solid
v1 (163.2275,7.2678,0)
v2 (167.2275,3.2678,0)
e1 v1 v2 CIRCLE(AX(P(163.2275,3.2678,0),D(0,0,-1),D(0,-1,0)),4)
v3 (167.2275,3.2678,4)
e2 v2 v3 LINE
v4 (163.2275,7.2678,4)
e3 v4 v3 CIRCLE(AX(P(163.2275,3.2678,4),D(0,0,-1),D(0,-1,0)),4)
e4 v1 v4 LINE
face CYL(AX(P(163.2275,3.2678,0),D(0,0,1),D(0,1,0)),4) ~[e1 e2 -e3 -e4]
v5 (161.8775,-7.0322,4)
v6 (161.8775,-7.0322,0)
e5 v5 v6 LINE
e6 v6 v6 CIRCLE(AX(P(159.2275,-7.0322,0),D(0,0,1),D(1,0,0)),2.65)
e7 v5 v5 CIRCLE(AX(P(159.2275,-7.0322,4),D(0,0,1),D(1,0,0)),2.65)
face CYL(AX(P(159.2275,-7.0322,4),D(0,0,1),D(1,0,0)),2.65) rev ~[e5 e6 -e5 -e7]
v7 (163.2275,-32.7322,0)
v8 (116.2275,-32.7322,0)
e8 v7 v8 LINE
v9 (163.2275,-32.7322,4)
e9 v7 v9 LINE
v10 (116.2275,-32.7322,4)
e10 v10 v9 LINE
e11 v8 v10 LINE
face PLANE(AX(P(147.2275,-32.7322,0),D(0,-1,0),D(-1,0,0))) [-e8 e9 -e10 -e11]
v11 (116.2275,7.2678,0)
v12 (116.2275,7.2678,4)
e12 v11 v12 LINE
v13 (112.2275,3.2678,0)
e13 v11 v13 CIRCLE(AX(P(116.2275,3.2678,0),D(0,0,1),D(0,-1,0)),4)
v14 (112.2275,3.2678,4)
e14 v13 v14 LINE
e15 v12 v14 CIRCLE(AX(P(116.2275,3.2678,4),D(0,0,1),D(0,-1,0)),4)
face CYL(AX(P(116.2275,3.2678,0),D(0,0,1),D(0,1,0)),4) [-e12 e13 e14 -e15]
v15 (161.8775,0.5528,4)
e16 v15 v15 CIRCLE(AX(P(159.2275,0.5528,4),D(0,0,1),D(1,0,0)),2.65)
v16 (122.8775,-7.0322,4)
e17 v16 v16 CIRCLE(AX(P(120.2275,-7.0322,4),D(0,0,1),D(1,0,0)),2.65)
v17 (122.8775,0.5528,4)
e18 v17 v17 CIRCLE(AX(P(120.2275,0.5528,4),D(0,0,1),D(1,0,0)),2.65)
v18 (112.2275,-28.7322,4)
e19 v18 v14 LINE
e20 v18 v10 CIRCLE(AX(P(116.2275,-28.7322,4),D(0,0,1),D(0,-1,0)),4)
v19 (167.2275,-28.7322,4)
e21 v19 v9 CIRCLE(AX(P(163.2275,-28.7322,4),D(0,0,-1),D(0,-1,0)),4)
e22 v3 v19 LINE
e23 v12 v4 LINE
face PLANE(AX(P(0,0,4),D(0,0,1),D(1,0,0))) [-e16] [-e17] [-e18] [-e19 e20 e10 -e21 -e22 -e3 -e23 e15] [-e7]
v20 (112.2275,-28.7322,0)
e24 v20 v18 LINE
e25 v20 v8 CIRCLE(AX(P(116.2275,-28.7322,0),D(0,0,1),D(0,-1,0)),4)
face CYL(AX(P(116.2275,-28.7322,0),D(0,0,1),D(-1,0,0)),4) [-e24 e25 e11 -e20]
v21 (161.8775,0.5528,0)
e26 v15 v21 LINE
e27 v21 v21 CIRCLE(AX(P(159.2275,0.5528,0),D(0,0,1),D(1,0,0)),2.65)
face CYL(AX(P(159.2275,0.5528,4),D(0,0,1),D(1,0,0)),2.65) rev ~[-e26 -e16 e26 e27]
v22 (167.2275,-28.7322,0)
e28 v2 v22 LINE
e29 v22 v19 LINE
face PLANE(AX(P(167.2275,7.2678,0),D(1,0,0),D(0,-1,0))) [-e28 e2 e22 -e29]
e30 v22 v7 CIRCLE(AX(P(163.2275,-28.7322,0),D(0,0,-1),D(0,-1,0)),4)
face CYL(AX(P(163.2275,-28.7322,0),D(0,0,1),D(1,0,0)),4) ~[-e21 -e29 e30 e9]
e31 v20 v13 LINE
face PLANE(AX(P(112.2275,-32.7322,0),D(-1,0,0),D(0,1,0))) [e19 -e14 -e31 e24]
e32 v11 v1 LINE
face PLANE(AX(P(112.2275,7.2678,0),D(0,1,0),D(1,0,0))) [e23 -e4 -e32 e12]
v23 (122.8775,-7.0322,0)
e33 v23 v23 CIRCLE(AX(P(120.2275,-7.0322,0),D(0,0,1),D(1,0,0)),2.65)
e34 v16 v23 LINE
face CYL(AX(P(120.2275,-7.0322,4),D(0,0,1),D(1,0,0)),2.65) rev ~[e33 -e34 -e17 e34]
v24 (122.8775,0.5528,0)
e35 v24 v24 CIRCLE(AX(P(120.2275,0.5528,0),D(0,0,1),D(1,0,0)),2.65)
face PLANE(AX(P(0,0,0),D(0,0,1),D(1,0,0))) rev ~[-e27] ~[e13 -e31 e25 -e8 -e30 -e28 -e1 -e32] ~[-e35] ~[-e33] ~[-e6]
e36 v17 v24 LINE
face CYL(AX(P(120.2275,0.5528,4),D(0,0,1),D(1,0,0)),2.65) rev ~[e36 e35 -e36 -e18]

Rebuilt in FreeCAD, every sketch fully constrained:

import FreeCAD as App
import Part
import Sketcher

V = App.Vector
Q = App.Units.Quantity


def edges_at(feature, points):
    """Names of the edges that pass closest to the given points."""
    edges = feature.Shape.Edges
    near = lambda p: min(range(len(edges)), key=lambda i: edges[i].distToShape(Part.Vertex(*p))[0])
    return sorted({f"Edge{near(p) + 1}" for p in points})


def add_polygon(sketch, points):
    """Adds a closed chain of lines whose ends are joined by coincident constraints."""
    first, n = sketch.GeometryCount, len(points)
    for a, b in zip(points, points[1:] + points[:1]):
        sketch.addGeometry(Part.LineSegment(App.Vector(*a, 0), App.Vector(*b, 0)), False)
    for i in range(n):
        sketch.addConstraint(Sketcher.Constraint("Coincident", first + i, 2, first + (i + 1) % n, 1))

doc = App.newDocument("Part")
body = doc.addObject("PartDesign::Body", "Body")

# Sketch on XY plane
sketch1 = body.newObject("Sketcher::SketchObject", "Sketch")
sketch1.AttachmentSupport = (doc.getObject("XY_Plane"), [""])
sketch1.MapMode = "FlatFace"
add_polygon(sketch1, [(167, 7), (112, 7), (112, -33), (167, -33)])  # lines 0-3
sketch1.addConstraint([
    Sketcher.Constraint("Horizontal", 0),
    Sketcher.Constraint("Vertical", 1),
    Sketcher.Constraint("Horizontal", 2),
    Sketcher.Constraint("Vertical", 3),
    Sketcher.Constraint("DistanceX", 0, 2, 0, 1, Q("55 mm")),
    Sketcher.Constraint("DistanceY", 1, 2, 1, 1, Q("40 mm")),
    Sketcher.Constraint("DistanceX", -1, 1, 0, 2, Q("112.2275 mm")),
    Sketcher.Constraint("DistanceY", -1, 1, 0, 2, Q("7.2678 mm")),
])
pad1 = body.newObject("PartDesign::Pad", "Pad")
pad1.Profile = sketch1
pad1.Length = 4

# Sketch on XY plane
sketch2 = body.newObject("Sketcher::SketchObject", "Sketch001")
sketch2.AttachmentSupport = (doc.getObject("XY_Plane"), [""])
sketch2.MapMode = "FlatFace"
sketch2.AttachmentOffset = App.Placement(V(0, 0, 4), App.Rotation())
sketch2.addGeometry([
    Part.Circle(V(120.2, 0.6, 0), V(0, 0, 1), 2.6),
    Part.Circle(V(159.2, 0.6, 0), V(0, 0, 1), 2.6),
    Part.Circle(V(120.2, -7, 0), V(0, 0, 1), 2.6),
    Part.Circle(V(159.2, -7, 0), V(0, 0, 1), 2.6),
], False)
sketch2.addConstraint([
    Sketcher.Constraint("Equal", 0, 1),
    Sketcher.Constraint("Equal", 1, 2),
    Sketcher.Constraint("Equal", 2, 3),
    Sketcher.Constraint("Horizontal", 0, 3, 1, 3),
    Sketcher.Constraint("Horizontal", 2, 3, 3, 3),
    Sketcher.Constraint("Vertical", 0, 3, 2, 3),
    Sketcher.Constraint("Vertical", 1, 3, 3, 3),
    Sketcher.Constraint("Diameter", 0, Q("5.3 mm")),
    Sketcher.Constraint("DistanceX", 0, 3, 1, 3, Q("39 mm")),
    Sketcher.Constraint("DistanceY", 2, 3, 0, 3, Q("7.585 mm")),
    Sketcher.Constraint("DistanceX", -1, 1, 0, 3, Q("120.2275 mm")),
    Sketcher.Constraint("DistanceY", -1, 1, 0, 3, Q("0.5528 mm")),
])
pocket1 = body.newObject("PartDesign::Pocket", "Pocket")
pocket1.Profile = sketch2
pocket1.Length = 4
doc.recompute()

fillet = body.newObject("PartDesign::Fillet", "Fillet")
fillet.Base = (pocket1, edges_at(pocket1, [
    (112.228, -32.732, 2),
    (112.228, 7.268, 2),
    (167.227, 7.268, 2),
    (167.227, -32.732, 2),
]))
fillet.Radius = 4

doc.recompute()
